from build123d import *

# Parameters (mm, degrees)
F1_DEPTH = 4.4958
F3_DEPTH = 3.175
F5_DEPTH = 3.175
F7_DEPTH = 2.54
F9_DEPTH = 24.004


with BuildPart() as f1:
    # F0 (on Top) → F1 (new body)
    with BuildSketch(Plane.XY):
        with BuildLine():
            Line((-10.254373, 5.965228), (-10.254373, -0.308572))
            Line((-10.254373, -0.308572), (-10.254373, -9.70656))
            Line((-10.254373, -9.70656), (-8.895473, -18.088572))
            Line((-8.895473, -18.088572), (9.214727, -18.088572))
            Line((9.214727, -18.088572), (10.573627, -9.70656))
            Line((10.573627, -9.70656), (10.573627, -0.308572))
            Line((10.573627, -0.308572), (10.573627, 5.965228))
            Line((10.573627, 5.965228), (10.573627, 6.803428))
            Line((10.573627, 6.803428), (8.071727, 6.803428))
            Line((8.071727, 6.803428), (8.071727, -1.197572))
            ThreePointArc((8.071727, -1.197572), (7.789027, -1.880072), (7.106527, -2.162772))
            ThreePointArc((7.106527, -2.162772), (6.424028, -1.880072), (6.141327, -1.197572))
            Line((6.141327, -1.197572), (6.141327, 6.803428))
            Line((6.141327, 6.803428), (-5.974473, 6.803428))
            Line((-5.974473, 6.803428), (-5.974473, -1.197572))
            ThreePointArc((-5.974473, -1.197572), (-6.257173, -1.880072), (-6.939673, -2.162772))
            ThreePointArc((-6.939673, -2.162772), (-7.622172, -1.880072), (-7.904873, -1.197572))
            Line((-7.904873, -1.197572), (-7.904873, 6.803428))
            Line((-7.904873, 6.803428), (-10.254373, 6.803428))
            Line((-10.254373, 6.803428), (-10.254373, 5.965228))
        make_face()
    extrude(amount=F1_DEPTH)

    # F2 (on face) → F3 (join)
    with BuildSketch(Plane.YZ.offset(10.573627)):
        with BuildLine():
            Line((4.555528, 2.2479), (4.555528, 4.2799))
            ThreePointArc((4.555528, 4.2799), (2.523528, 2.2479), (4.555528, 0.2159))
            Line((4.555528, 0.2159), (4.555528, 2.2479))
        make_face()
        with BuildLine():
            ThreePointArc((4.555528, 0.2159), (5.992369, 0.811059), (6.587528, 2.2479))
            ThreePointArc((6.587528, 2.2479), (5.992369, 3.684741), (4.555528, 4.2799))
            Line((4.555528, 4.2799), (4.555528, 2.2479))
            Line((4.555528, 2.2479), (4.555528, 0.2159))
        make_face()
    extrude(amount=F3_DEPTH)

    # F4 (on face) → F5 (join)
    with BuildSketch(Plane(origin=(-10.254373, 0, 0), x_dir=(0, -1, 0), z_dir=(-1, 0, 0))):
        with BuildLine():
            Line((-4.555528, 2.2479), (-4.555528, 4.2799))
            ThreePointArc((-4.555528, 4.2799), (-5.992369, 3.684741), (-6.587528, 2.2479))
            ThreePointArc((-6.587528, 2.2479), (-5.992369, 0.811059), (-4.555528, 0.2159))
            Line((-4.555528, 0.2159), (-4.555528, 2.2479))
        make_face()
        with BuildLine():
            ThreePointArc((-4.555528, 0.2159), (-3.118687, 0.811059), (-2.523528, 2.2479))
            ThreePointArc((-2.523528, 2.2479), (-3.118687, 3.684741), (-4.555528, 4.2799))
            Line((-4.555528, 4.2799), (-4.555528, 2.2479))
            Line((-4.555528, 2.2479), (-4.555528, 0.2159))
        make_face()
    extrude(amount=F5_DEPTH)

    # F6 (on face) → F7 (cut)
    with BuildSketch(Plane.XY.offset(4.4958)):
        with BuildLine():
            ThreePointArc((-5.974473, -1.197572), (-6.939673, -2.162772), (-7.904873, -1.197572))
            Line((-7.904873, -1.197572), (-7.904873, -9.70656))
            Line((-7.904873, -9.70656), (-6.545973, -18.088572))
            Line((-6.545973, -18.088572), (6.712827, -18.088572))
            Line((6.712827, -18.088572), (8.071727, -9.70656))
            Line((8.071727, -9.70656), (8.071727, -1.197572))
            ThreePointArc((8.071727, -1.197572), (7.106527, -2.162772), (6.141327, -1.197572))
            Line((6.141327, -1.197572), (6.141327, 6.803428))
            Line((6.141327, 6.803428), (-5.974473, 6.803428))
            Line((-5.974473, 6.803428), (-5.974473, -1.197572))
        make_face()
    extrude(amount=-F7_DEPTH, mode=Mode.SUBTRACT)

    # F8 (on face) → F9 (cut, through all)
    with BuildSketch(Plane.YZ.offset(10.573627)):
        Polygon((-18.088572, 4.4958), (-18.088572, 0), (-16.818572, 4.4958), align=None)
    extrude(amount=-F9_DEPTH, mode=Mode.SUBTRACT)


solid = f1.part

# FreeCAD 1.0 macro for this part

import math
import FreeCAD as App
import Part
import Sketcher

V = App.Vector
Q = App.Units.Quantity

doc = App.newDocument("Part")
body = doc.addObject("PartDesign::Body", "Body")

# Sketch on XY plane
sketch1 = body.newObject("Sketcher::SketchObject", "Sketch")
sketch1.AttachmentSupport = (doc.getObject("XY_Plane"), [""])
sketch1.MapMode = "FlatFace"
sketch1.addGeometry([
    Part.LineSegment(V(-10.3, -9.7, 0), V(-8.9, -18.1, 0)),  # 0
    Part.LineSegment(V(-8.9, -18.1, 0), V(9.2, -18.1, 0)),  # 1
    Part.LineSegment(V(9.2, -18.1, 0), V(10.6, -9.7, 0)),  # 2
    Part.LineSegment(V(10.6, -9.7, 0), V(10.6, 6.8, 0)),  # 3
    Part.LineSegment(V(10.6, 6.8, 0), V(8.1, 6.8, 0)),  # 4
    Part.LineSegment(V(8.1, 6.8, 0), V(8.1, -1.2, 0)),  # 5
    Part.ArcOfCircle(Part.Circle(V(7.1, -1.2, 0), V(0, 0, 1), 1), math.radians(-90), math.radians(0)),  # 6
    Part.ArcOfCircle(Part.Circle(V(7.1, -1.2, 0), V(0, 0, 1), 1), math.radians(180), math.radians(270)),  # 7
    Part.LineSegment(V(6.1, -1.2, 0), V(6.1, 6.8, 0)),  # 8
    Part.LineSegment(V(6.1, 6.8, 0), V(-6, 6.8, 0)),  # 9
    Part.LineSegment(V(-6, 6.8, 0), V(-6, -1.2, 0)),  # 10
    Part.ArcOfCircle(Part.Circle(V(-6.9, -1.2, 0), V(0, 0, 1), 1), math.radians(-90), math.radians(0)),  # 11
    Part.ArcOfCircle(Part.Circle(V(-6.9, -1.2, 0), V(0, 0, 1), 1), math.radians(180), math.radians(270)),  # 12
    Part.LineSegment(V(-7.9, -1.2, 0), V(-7.9, 6.8, 0)),  # 13
    Part.LineSegment(V(-7.9, 6.8, 0), V(-10.3, 6.8, 0)),  # 14
    Part.LineSegment(V(-10.3, 6.8, 0), V(-10.3, -9.7, 0)),  # 15
], False)
sketch1.addConstraint([
    Sketcher.Constraint("Coincident", 0, 2, 1, 1),
    Sketcher.Constraint("Coincident", 1, 2, 2, 1),
    Sketcher.Constraint("Coincident", 2, 2, 3, 1),
    Sketcher.Constraint("Coincident", 3, 2, 4, 1),
    Sketcher.Constraint("Coincident", 4, 2, 5, 1),
    Sketcher.Constraint("Tangent", 5, 2, 6, 2),
    Sketcher.Constraint("Coincident", 6, 1, 7, 2),
    Sketcher.Constraint("Tangent", 7, 1, 8, 1),
    Sketcher.Constraint("Coincident", 8, 2, 9, 1),
    Sketcher.Constraint("Coincident", 9, 2, 10, 1),
    Sketcher.Constraint("Tangent", 10, 2, 11, 2),
    Sketcher.Constraint("Coincident", 11, 1, 12, 2),
    Sketcher.Constraint("Tangent", 12, 1, 13, 1),
    Sketcher.Constraint("Coincident", 13, 2, 14, 1),
    Sketcher.Constraint("Coincident", 14, 2, 15, 1),
    Sketcher.Constraint("Coincident", 15, 2, 0, 1),
    Sketcher.Constraint("Horizontal", 1),
    Sketcher.Constraint("Vertical", 3),
    Sketcher.Constraint("Horizontal", 4),
    Sketcher.Constraint("Vertical", 5),
    Sketcher.Constraint("Vertical", 8),
    Sketcher.Constraint("Horizontal", 9),
    Sketcher.Constraint("Vertical", 10),
    Sketcher.Constraint("Vertical", 13),
    Sketcher.Constraint("Horizontal", 14),
    Sketcher.Constraint("Vertical", 15),
    Sketcher.Constraint("Coincident", 7, 3, 6, 3),
    Sketcher.Constraint("Coincident", 12, 3, 11, 3),
    Sketcher.Constraint("Equal", 7, 11),
    Sketcher.Constraint("Horizontal", 7, 3, 11, 3),
    Sketcher.Constraint("Horizontal", 4, 2, 8, 2),
    Sketcher.Constraint("Horizontal", 9, 2, 13, 2),
    Sketcher.Constraint("Horizontal", 2, 2, 15, 2),
    Sketcher.Constraint("Vertical", 7, 3, 6, 1),
    Sketcher.Constraint("Vertical", 12, 3, 11, 1),
    Sketcher.Constraint("Equal", 0, 2),
    Sketcher.Constraint("Radius", 6, Q("0.0379999 in")),
    Sketcher.Constraint("DistanceX", 1, 1, 1, 2, Q("0.713 in")),
    Sketcher.Constraint("DistanceX", 9, 2, 9, 1, Q("0.477 in")),
    Sketcher.Constraint("DistanceY", 5, 2, 5, 1, Q("0.315 in")),
    Sketcher.Constraint("DistanceX", 0, 2, 7, 3, Q("0.63 in")),
    Sketcher.Constraint("DistanceX", 4, 2, 4, 1, Q("0.0985 in")),
    Sketcher.Constraint("DistanceY", 0, 2, 11, 3, Q("0.6649999 in")),
    Sketcher.Constraint("DistanceY", 3, 1, 3, 2, Q("16.509988 mm")),
    Sketcher.Constraint("DistanceX", -1, 1, 6, 3, Q("7.106529 mm")),
    Sketcher.Constraint("DistanceY", 0, 2, -1, 1, Q("18.088572 mm")),
])
pad1 = body.newObject("PartDesign::Pad", "Pad")
pad1.Profile = sketch1
pad1.Length = Q("0.177 in")

# Sketch on YZ plane
sketch2 = body.newObject("Sketcher::SketchObject", "Sketch001")
sketch2.AttachmentSupport = (doc.getObject("YZ_Plane"), [""])
sketch2.MapMode = "FlatFace"
sketch2.AttachmentOffset = App.Placement(V(0, 0, 10.573627), App.Rotation())
sketch2.addGeometry([
    Part.ArcOfCircle(Part.Circle(V(4.6, 2.2, 0), V(0, 0, 1), 2), math.radians(90), math.radians(270)),
    Part.ArcOfCircle(Part.Circle(V(4.6, 2.2, 0), V(0, 0, 1), 2), math.radians(-90), math.radians(0)),
    Part.ArcOfCircle(Part.Circle(V(4.6, 2.2, 0), V(0, 0, 1), 2), math.radians(0), math.radians(90)),
], False)
sketch2.addConstraint([
    Sketcher.Constraint("Tangent", 0, 2, 1, 1),
    Sketcher.Constraint("Tangent", 1, 2, 2, 1),
    Sketcher.Constraint("Tangent", 2, 2, 0, 1),
    Sketcher.Constraint("Horizontal", 2, 3, 1, 2),
    Sketcher.Constraint("Vertical", 2, 3, 0, 2),
    Sketcher.Constraint("Vertical", 0, 2, 2, 2),
    Sketcher.Constraint("Radius", 0, Q("0.08 in")),
    Sketcher.Constraint("DistanceY", -1, 1, 0, 3, Q("0.0885 in")),
    Sketcher.Constraint("DistanceX", -1, 1, 1, 3, Q("4.555528 mm")),
])
pad2 = body.newObject("PartDesign::Pad", "Pad001")
pad2.Profile = sketch2
pad2.Length = Q("0.125 in")

# Sketch on YZ plane
sketch3 = body.newObject("Sketcher::SketchObject", "Sketch002")
sketch3.AttachmentSupport = (doc.getObject("YZ_Plane"), [""])
sketch3.MapMode = "FlatFace"
sketch3.AttachmentOffset = App.Placement(V(0, 0, -10.254373), App.Rotation())
sketch3.addGeometry([
    Part.ArcOfCircle(Part.Circle(V(4.6, 2.2, 0), V(0, 0, 1), 2), math.radians(0), math.radians(90)),
    Part.ArcOfCircle(Part.Circle(V(4.6, 2.2, 0), V(0, 0, 1), 2), math.radians(-90), math.radians(0)),
    Part.ArcOfCircle(Part.Circle(V(4.6, 2.2, 0), V(0, 0, 1), 2), math.radians(180), math.radians(270)),
    Part.ArcOfCircle(Part.Circle(V(4.6, 2.2, 0), V(0, 0, 1), 2), math.radians(90), math.radians(180)),
], False)
sketch3.addConstraint([
    Sketcher.Constraint("Tangent", 0, 1, 1, 2),
    Sketcher.Constraint("Tangent", 1, 1, 2, 2),
    Sketcher.Constraint("Tangent", 2, 1, 3, 2),
    Sketcher.Constraint("Tangent", 3, 1, 0, 2),
    Sketcher.Constraint("Equal", 0, 1),
    Sketcher.Constraint("Horizontal", 3, 3, 0, 1),
    Sketcher.Constraint("Horizontal", 0, 1, 2, 1),
    Sketcher.Constraint("Vertical", 3, 3, 1, 1),
    Sketcher.Constraint("Vertical", 1, 1, 3, 1),
    Sketcher.Constraint("Radius", 0, Q("0.08 in")),
    Sketcher.Constraint("DistanceY", -1, 1, 0, 3, Q("0.0885 in")),
    Sketcher.Constraint("DistanceX", -1, 1, 0, 3, Q("4.555528 mm")),
])
pad3 = body.newObject("PartDesign::Pad", "Pad002")
pad3.Profile = sketch3
pad3.Length = Q("0.125 in")
pad3.Reversed = True

# Sketch on XY plane
sketch4 = body.newObject("Sketcher::SketchObject", "Sketch003")
sketch4.AttachmentSupport = (doc.getObject("XY_Plane"), [""])
sketch4.MapMode = "FlatFace"
sketch4.AttachmentOffset = App.Placement(V(0, 0, 0.177 * 25.4), App.Rotation())
sketch4.addGeometry([
    Part.ArcOfCircle(Part.Circle(V(-6.9, -1.2, 0), V(0, 0, 1), 1), math.radians(180), math.radians(360)),  # 0
    Part.LineSegment(V(-7.9, -1.2, 0), V(-7.9, -9.7, 0)),  # 1
    Part.LineSegment(V(-7.9, -9.7, 0), V(-6.5, -18.1, 0)),  # 2
    Part.LineSegment(V(-6.5, -18.1, 0), V(6.7, -18.1, 0)),  # 3
    Part.LineSegment(V(6.7, -18.1, 0), V(8.1, -9.7, 0)),  # 4
    Part.LineSegment(V(8.1, -9.7, 0), V(8.1, -1.2, 0)),  # 5
    Part.ArcOfCircle(Part.Circle(V(7.1, -1.2, 0), V(0, 0, 1), 1), math.radians(180), math.radians(360)),  # 6
    Part.LineSegment(V(6.1, -1.2, 0), V(6.1, 6.8, 0)),  # 7
    Part.LineSegment(V(6.1, 6.8, 0), V(-6, 6.8, 0)),  # 8
    Part.LineSegment(V(-6, 6.8, 0), V(-6, -1.2, 0)),  # 9
], False)
sketch4.addConstraint([
    Sketcher.Constraint("Tangent", 0, 1, 1, 1),
    Sketcher.Constraint("Coincident", 1, 2, 2, 1),
    Sketcher.Constraint("Coincident", 2, 2, 3, 1),
    Sketcher.Constraint("Coincident", 3, 2, 4, 1),
    Sketcher.Constraint("Coincident", 4, 2, 5, 1),
    Sketcher.Constraint("Tangent", 5, 2, 6, 2),
    Sketcher.Constraint("Tangent", 6, 1, 7, 1),
    Sketcher.Constraint("Coincident", 7, 2, 8, 1),
    Sketcher.Constraint("Coincident", 8, 2, 9, 1),
    Sketcher.Constraint("Tangent", 9, 2, 0, 2),
    Sketcher.Constraint("Vertical", 1),
    Sketcher.Constraint("Horizontal", 3),
    Sketcher.Constraint("Vertical", 5),
    Sketcher.Constraint("Vertical", 7),
    Sketcher.Constraint("Horizontal", 8),
    Sketcher.Constraint("Vertical", 9),
    Sketcher.Constraint("Equal", 0, 6),
    Sketcher.Constraint("Horizontal", 0, 3, 6, 3),
    Sketcher.Constraint("Horizontal", 1, 2, 4, 2),
    Sketcher.Constraint("Equal", 2, 4),
    Sketcher.Constraint("Radius", 0, Q("0.038 in")),
    Sketcher.Constraint("DistanceX", 3, 1, 3, 2, Q("0.522 in")),
    Sketcher.Constraint("DistanceX", 8, 2, 8, 1, Q("0.477 in")),
    Sketcher.Constraint("DistanceY", 7, 1, 7, 2, Q("0.315 in")),
    Sketcher.Constraint("DistanceY", 2, 2, 0, 3, Q("0.665 in")),
    Sketcher.Constraint("Distance", 2, Q("8.491451 mm")),
    Sketcher.Constraint("DistanceY", 0, 1, -1, 1, Q("1.197572 mm")),
    Sketcher.Constraint("DistanceX", 0, 3, -1, 1, Q("6.939673 mm")),
])
pocket1 = body.newObject("PartDesign::Pocket", "Pocket")
pocket1.Profile = sketch4
pocket1.Length = Q("0.1 in")

# Sketch on YZ plane
sketch5 = body.newObject("Sketcher::SketchObject", "Sketch004")
sketch5.AttachmentSupport = (doc.getObject("YZ_Plane"), [""])
sketch5.MapMode = "FlatFace"
sketch5.AttachmentOffset = App.Placement(V(0, 0, 10.573627), App.Rotation())
sketch5.addGeometry([
    Part.LineSegment(V(-18.1, 4.5, 0), V(-18.1, 0, 0)),
    Part.LineSegment(V(-18.1, 0, 0), V(-16.8, 4.5, 0)),
    Part.LineSegment(V(-16.8, 4.5, 0), V(-18.1, 4.5, 0)),
], False)
sketch5.addConstraint([
    Sketcher.Constraint("Coincident", 0, 2, 1, 1),
    Sketcher.Constraint("Coincident", 1, 2, 2, 1),
    Sketcher.Constraint("Coincident", 2, 2, 0, 1),
    Sketcher.Constraint("Vertical", 0),
    Sketcher.Constraint("Horizontal", 2),
    Sketcher.Constraint("PointOnObject", 0, 2, -1),
    Sketcher.Constraint("DistanceX", 2, 2, 2, 1, Q("0.05 in")),
    Sketcher.Constraint("DistanceY", 0, 2, 0, 1, Q("0.177 in")),
    Sketcher.Constraint("DistanceX", 0, 2, -1, 1, Q("18.088572 mm")),
])
pocket2 = body.newObject("PartDesign::Pocket", "Pocket001")
pocket2.Profile = sketch5
pocket2.Type = "ThroughAll"

doc.recompute()
